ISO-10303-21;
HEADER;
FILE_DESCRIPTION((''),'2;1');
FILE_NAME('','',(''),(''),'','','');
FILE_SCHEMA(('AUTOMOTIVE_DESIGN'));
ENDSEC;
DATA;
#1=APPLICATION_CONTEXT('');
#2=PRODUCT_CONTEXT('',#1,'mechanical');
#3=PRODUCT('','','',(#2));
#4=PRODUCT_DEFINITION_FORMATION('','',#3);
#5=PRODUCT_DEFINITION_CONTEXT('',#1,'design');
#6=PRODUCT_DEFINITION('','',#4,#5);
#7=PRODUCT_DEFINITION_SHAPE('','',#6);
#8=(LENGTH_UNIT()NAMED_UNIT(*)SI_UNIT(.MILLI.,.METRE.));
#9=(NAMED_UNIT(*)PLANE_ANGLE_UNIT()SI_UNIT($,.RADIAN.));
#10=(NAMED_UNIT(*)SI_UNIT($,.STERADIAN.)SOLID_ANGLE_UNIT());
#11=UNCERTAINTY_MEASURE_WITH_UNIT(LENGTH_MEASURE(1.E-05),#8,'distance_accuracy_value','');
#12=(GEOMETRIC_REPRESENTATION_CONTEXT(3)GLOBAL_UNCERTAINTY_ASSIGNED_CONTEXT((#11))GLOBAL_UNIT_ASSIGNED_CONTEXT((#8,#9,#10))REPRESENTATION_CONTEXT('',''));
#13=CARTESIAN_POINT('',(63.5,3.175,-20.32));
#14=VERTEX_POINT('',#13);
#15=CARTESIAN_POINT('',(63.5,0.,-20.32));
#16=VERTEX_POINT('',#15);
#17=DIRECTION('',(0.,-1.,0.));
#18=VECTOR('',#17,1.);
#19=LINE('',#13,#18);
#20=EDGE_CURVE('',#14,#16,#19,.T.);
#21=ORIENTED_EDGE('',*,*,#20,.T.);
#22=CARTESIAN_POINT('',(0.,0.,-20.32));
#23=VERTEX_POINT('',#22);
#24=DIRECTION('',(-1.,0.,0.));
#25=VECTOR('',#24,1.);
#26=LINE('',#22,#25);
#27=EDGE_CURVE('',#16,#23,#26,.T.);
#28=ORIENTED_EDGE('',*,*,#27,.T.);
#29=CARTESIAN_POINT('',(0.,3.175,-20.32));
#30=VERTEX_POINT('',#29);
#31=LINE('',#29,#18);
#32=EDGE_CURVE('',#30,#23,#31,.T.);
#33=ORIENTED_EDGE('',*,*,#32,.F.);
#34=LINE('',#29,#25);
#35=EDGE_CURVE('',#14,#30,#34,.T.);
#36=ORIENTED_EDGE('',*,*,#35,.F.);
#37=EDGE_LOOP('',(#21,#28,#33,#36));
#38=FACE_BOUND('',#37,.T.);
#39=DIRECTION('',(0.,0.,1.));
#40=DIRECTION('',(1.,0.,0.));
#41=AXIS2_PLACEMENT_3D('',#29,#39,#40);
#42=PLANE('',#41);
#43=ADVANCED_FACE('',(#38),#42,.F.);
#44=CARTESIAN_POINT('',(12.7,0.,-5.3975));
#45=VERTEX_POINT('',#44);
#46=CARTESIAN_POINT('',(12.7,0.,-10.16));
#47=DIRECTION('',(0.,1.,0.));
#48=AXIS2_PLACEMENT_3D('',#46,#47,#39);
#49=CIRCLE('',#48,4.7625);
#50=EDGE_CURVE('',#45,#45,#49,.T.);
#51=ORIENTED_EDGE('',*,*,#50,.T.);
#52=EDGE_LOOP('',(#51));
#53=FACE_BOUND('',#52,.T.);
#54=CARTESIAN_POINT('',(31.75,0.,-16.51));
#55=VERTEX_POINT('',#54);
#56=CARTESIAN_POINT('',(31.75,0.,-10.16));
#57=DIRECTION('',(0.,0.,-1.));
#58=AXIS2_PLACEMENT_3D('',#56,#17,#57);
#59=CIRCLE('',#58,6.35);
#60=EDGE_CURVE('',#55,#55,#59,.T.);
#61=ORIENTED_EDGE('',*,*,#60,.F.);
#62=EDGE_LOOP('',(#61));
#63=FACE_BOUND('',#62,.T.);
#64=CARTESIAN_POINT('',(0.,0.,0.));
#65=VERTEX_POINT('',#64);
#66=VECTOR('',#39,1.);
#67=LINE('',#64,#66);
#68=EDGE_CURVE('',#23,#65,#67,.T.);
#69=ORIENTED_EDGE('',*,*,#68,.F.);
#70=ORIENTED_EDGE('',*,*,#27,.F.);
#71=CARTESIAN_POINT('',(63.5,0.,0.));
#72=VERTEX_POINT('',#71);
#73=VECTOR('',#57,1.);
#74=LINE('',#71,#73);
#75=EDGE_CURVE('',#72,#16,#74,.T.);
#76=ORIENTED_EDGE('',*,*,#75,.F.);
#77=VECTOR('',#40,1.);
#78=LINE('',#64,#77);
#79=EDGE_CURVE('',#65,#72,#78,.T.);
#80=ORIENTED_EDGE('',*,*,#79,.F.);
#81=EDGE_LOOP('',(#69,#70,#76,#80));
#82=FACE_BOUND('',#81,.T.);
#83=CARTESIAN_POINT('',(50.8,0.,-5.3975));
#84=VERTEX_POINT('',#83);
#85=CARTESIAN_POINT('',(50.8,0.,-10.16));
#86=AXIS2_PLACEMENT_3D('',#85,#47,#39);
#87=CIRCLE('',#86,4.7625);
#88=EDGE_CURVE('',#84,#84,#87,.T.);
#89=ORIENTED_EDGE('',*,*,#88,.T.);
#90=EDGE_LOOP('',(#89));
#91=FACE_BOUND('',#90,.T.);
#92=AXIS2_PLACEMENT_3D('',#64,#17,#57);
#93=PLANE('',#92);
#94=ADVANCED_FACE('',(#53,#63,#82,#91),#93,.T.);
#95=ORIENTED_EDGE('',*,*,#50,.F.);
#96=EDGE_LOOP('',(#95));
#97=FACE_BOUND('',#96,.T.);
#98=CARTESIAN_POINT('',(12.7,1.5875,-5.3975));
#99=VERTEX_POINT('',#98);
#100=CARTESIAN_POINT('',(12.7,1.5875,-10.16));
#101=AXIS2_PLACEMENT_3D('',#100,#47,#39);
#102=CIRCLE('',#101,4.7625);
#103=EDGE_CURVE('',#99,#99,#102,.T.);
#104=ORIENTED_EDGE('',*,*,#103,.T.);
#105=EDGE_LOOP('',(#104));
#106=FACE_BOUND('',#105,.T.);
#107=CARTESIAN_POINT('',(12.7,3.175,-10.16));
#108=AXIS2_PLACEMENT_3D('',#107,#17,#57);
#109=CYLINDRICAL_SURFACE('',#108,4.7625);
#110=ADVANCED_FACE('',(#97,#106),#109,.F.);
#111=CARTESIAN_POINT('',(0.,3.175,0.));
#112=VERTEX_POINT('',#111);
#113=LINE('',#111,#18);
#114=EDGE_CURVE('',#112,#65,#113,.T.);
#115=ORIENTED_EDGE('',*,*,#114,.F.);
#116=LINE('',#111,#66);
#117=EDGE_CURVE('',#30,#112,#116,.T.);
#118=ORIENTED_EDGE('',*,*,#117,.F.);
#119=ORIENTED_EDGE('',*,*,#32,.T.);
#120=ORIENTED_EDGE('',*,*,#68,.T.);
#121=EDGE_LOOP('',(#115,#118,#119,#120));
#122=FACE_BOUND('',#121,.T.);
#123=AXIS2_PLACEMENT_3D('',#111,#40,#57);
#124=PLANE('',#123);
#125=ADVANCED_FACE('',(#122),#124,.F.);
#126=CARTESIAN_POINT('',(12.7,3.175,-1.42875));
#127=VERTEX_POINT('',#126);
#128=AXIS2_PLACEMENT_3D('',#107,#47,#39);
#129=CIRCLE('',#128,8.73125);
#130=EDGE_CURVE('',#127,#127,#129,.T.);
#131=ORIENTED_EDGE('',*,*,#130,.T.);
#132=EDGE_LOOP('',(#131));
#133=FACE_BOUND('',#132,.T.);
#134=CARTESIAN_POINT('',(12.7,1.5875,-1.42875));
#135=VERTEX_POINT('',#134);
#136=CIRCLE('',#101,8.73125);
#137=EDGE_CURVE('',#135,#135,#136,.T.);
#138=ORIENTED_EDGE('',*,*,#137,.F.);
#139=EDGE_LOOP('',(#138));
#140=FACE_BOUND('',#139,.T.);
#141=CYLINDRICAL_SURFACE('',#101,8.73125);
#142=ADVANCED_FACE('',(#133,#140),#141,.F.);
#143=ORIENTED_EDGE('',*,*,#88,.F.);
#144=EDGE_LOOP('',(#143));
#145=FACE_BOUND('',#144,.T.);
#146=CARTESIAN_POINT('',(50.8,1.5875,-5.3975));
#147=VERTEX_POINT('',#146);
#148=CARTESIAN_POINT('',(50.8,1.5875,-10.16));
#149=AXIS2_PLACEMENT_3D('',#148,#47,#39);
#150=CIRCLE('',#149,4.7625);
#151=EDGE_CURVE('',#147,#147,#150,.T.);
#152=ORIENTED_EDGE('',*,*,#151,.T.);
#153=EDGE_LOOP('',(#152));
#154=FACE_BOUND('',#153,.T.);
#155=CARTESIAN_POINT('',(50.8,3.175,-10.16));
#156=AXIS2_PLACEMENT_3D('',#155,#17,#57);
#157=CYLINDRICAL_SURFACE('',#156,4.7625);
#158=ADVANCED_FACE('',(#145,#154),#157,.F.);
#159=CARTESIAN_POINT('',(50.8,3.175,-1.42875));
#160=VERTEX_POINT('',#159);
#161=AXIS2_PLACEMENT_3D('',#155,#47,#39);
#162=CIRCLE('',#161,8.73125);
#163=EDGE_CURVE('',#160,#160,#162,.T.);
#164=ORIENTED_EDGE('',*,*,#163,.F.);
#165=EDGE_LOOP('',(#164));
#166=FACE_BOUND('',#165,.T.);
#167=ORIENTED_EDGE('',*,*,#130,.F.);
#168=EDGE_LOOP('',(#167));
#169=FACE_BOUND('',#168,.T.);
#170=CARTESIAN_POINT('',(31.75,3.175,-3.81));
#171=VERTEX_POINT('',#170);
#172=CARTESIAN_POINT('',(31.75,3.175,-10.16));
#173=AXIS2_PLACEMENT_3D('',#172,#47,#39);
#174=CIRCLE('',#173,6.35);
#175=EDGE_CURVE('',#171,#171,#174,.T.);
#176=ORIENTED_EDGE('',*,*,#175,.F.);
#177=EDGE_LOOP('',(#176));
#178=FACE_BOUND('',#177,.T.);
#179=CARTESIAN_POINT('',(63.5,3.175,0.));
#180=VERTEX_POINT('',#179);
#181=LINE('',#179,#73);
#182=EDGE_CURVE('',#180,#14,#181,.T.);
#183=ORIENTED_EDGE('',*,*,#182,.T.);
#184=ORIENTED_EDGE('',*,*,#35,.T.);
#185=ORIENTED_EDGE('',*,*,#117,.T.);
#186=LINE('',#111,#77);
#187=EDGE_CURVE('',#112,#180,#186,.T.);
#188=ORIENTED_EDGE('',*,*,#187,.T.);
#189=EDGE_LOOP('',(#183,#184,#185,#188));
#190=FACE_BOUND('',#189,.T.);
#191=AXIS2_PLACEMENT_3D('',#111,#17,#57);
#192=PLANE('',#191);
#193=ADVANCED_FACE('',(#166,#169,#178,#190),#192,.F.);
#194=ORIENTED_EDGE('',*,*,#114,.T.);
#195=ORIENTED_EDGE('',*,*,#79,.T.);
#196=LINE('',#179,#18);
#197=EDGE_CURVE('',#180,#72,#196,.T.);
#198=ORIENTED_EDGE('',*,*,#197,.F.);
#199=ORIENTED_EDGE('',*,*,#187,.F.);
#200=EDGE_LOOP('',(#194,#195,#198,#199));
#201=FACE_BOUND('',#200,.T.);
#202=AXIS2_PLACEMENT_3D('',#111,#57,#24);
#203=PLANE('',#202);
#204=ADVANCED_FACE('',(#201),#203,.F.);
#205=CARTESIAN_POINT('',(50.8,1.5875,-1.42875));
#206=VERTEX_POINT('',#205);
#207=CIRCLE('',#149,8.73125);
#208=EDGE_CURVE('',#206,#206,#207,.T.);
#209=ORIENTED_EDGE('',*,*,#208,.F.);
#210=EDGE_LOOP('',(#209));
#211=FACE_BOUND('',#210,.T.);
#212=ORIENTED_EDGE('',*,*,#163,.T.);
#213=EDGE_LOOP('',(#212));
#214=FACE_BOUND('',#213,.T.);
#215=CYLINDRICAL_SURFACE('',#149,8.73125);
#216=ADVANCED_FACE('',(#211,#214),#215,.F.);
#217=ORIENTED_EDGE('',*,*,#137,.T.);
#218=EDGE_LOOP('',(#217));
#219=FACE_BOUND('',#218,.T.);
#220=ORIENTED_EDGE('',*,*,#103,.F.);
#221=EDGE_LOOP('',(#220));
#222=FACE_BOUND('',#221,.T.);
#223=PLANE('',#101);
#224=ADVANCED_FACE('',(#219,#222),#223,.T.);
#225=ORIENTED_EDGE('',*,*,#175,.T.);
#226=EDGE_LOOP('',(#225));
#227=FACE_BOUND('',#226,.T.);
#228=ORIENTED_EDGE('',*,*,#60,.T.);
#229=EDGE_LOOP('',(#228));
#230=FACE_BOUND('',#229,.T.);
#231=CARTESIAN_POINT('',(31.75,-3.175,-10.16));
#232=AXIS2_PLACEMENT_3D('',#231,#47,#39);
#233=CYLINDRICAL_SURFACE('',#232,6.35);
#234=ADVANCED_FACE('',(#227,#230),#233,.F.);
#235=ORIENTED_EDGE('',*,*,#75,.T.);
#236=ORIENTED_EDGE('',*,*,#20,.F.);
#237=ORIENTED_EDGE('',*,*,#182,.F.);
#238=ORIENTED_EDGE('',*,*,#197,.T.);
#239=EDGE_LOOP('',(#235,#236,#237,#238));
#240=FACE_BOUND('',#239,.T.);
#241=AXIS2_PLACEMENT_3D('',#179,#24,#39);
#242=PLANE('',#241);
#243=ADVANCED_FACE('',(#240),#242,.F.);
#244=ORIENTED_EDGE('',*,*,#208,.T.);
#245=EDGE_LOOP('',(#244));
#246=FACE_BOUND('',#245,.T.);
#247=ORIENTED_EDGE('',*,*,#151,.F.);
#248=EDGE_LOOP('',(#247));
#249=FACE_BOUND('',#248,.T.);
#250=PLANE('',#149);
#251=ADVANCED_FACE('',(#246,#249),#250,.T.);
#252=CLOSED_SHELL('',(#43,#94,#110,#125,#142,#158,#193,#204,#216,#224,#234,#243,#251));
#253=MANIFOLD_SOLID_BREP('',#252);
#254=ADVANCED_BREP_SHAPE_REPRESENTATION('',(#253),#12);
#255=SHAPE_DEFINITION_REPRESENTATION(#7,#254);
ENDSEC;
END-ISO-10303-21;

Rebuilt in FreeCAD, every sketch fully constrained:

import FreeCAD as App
import Part
import Sketcher

V = App.Vector
Q = App.Units.Quantity

doc = App.newDocument("Part")
body = doc.addObject("PartDesign::Body", "Body")

# Sketch on XZ plane
sketch1 = body.newObject("Sketcher::SketchObject", "Sketch")
sketch1.AttachmentSupport = (doc.getObject("XZ_Plane"), [""])
sketch1.MapMode = "FlatFace"
sketch1.addGeometry(Part.LineSegment(V(0, -20.3, 0), V(0, 0, 0)), False)
sketch1.addGeometry(Part.LineSegment(V(0, 0, 0), V(63.5, 0, 0)), False)
sketch1.addGeometry(Part.LineSegment(V(63.5, 0, 0), V(63.5, -20.3, 0)), False)
sketch1.addGeometry(Part.LineSegment(V(63.5, -20.3, 0), V(0, -20.3, 0)), False)
sketch1.addGeometry(Part.Circle(V(12.7, -10.2, 0), V(0, 0, 1), 4.8), False)
sketch1.addGeometry(Part.Circle(V(50.8, -10.2, 0), V(0, 0, 1), 4.8), False)
sketch1.addConstraint(Sketcher.Constraint("Coincident", 0, 2, 1, 1))
sketch1.addConstraint(Sketcher.Constraint("Coincident", 1, 2, 2, 1))
sketch1.addConstraint(Sketcher.Constraint("Coincident", 2, 2, 3, 1))
sketch1.addConstraint(Sketcher.Constraint("Coincident", 3, 2, 0, 1))
sketch1.addConstraint(Sketcher.Constraint("Vertical", 0))
sketch1.addConstraint(Sketcher.Constraint("Horizontal", 1))
sketch1.addConstraint(Sketcher.Constraint("Vertical", 2))
sketch1.addConstraint(Sketcher.Constraint("Horizontal", 3))
sketch1.addConstraint(Sketcher.Constraint("Coincident", 0, 2, -1, 1))
sketch1.addConstraint(Sketcher.Constraint("Equal", 4, 5))
sketch1.addConstraint(Sketcher.Constraint("Horizontal", 4, 3, 5, 3))
sketch1.addConstraint(Sketcher.Constraint("Diameter", 4, Q("0.375 in")))
sketch1.addConstraint(Sketcher.Constraint("DistanceX", 1, 1, 1, 2, Q("2.5 in")))
sketch1.addConstraint(Sketcher.Constraint("DistanceY", 0, 1, 0, 2, Q("0.8 in")))
sketch1.addConstraint(Sketcher.Constraint("DistanceX", -1, 1, 5, 3, Q("2 in")))
sketch1.addConstraint(Sketcher.Constraint("DistanceX", 4, 3, 1, 2, Q("2 in")))
sketch1.addConstraint(Sketcher.Constraint("DistanceY", 4, 3, -1, 1, Q("0.4 in")))
pad1 = body.newObject("PartDesign::Pad", "Pad")
pad1.Profile = sketch1
pad1.Length = Q("0.125 in")
pad1.Reversed = True

# Sketch on XZ plane
sketch2 = body.newObject("Sketcher::SketchObject", "Sketch001")
sketch2.AttachmentSupport = (doc.getObject("XZ_Plane"), [""])
sketch2.MapMode = "FlatFace"
sketch2.AttachmentOffset = App.Placement(V(0, 0, -0.125 * 25.4), App.Rotation())
sketch2.addGeometry(Part.Circle(V(32, -10, 0), V(0, 0, 1), 6), False)
sketch2.addConstraint(Sketcher.Constraint("Diameter", 0, Q("0.5 in")))
sketch2.addConstraint(Sketcher.Constraint("DistanceY", 0, 3, -1, 1, Q("0.4 in")))
sketch2.addConstraint(Sketcher.Constraint("DistanceX", -1, 1, 0, 3, Q("1.25 in")))
pocket1 = body.newObject("PartDesign::Pocket", "Pocket")
pocket1.Profile = sketch2
pocket1.Length = Q("0.25 in")
pocket1.Reversed = True

# Sketch on XZ plane
sketch3 = body.newObject("Sketcher::SketchObject", "Sketch002")
sketch3.AttachmentSupport = (doc.getObject("XZ_Plane"), [""])
sketch3.MapMode = "FlatFace"
sketch3.AttachmentOffset = App.Placement(V(0, 0, -0.125 * 25.4), App.Rotation())
sketch3.addGeometry(Part.Circle(V(13, -10, 0), V(0, 0, 1), 9), False)
sketch3.addGeometry(Part.Circle(V(51, -10, 0), V(0, 0, 1), 9), False)
sketch3.addConstraint(Sketcher.Constraint("Equal", 0, 1))
sketch3.addConstraint(Sketcher.Constraint("Horizontal", 0, 3, 1, 3))
sketch3.addConstraint(Sketcher.Constraint("Diameter", 0, Q("0.6875 in")))
sketch3.addConstraint(Sketcher.Constraint("DistanceX", -1, 1, 1, 3, Q("2 in")))
sketch3.addConstraint(Sketcher.Constraint("DistanceX", -1, 1, 0, 3, Q("0.5 in")))
sketch3.addConstraint(Sketcher.Constraint("DistanceY", 0, 3, -1, 1, Q("0.4 in")))
pocket2 = body.newObject("PartDesign::Pocket", "Pocket001")
pocket2.Profile = sketch3
pocket2.Length = Q("0.0625 in")
pocket2.Reversed = True

doc.recompute()
